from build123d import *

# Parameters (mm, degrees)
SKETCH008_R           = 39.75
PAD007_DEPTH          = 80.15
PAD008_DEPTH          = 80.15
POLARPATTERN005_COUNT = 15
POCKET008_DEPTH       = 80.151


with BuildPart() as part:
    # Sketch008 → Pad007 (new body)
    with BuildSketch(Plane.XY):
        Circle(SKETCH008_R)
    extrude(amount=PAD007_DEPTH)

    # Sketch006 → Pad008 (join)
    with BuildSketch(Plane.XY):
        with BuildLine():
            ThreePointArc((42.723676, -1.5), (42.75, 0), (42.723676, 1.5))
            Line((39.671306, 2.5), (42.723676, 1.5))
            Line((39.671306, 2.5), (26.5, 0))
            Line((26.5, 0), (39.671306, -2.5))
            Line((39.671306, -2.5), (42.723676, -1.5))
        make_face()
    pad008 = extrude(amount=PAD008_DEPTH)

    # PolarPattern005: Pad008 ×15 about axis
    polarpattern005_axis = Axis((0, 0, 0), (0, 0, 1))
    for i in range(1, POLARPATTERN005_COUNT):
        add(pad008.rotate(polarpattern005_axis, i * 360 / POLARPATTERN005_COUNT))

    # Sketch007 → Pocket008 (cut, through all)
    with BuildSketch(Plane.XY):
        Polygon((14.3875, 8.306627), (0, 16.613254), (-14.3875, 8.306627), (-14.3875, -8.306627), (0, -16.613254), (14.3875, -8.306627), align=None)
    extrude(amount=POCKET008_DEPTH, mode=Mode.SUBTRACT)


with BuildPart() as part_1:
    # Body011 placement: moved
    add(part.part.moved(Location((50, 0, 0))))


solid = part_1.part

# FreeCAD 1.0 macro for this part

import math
import FreeCAD as App
import Part
import Sketcher
Q = App.Units.Quantity

doc = App.newDocument("Part")
body = doc.addObject("PartDesign::Body", "Body")

sketch1 = body.newObject("Sketcher::SketchObject", "Sketch")
sketch1.AttachmentSupport = (doc.getObject("XY_Plane"), [""])
sketch1.MapMode = "FlatFace"
sketch1.addGeometry(Part.Circle(App.Vector(0, 0, 0), App.Vector(0, 0, 1), 39.75), False)
sketch1.addConstraint([
    Sketcher.Constraint("Coincident", 0, 3, -1, 1),
    Sketcher.Constraint("Diameter", 0, Q("79.5 mm")),
])
pad1 = body.newObject("PartDesign::Pad", "Pad")
pad1.Profile = sketch1
pad1.Length = 80.15

sketch2 = body.newObject("Sketcher::SketchObject", "Sketch001")
sketch2.AttachmentSupport = (doc.getObject("XY_Plane"), [""])
sketch2.MapMode = "FlatFace"
sketch2.addGeometry([
    Part.ArcOfCircle(Part.Circle(App.Vector(0.000172, 0, 0), App.Vector(0, 0, 1), 42.749828), math.radians(-2.010799), math.radians(2.010799)),
    Part.LineSegment(App.Vector(42.723676, 1.5, 0), App.Vector(39.671306, 2.5, 0)),
    Part.LineSegment(App.Vector(39.671306, 2.5, 0), App.Vector(26.5, 0, 0)),
    Part.LineSegment(App.Vector(26.5, 0, 0), App.Vector(39.671306, -2.5, 0)),
    Part.LineSegment(App.Vector(39.671306, -2.5, 0), App.Vector(42.723676, -1.5, 0)),
], False)
sketch2.addConstraint([
    Sketcher.Constraint("Coincident", 0, 2, 1, 1),
    Sketcher.Constraint("Coincident", 1, 2, 2, 1),
    Sketcher.Constraint("Coincident", 2, 2, 3, 1),
    Sketcher.Constraint("Coincident", 3, 2, 4, 1),
    Sketcher.Constraint("Coincident", 4, 2, 0, 1),
    Sketcher.Constraint("Symmetric", 1, 2, 3, 2, -1),
    Sketcher.Constraint("Symmetric", 0, 2, 4, 2, -1),
    Sketcher.Constraint("PointOnObject", 2, 2, -1),
    Sketcher.Constraint("DistanceY", 0, 2, 1, 2, Q("1 mm")),
    Sketcher.Constraint("DistanceY", 3, 2, 1, 2, Q("5 mm")),
    Sketcher.Constraint("DistanceX", -1, 1, 2, 2, Q("26.5 mm")),
    Sketcher.Constraint("Radius", 0, Q("42.749828 mm")),
    Sketcher.Constraint("DistanceX", -1, 1, 0, 3, Q("0.000172 mm")),
    Sketcher.Constraint("DistanceX", 1, 2, 0, 2, Q("3.05237 mm")),
])
pad2 = body.newObject("PartDesign::Pad", "Pad001")
pad2.Profile = sketch2
pad2.Length = 80.15
doc.recompute()

polarpattern = body.newObject("PartDesign::PolarPattern", "PolarPattern")
polarpattern.Originals = [pad2]
polarpattern.Axis = (doc.getObject("Z_Axis"), [""])
polarpattern.Angle = 360
polarpattern.Occurrences = 15
body.Tip = polarpattern

sketch3 = body.newObject("Sketcher::SketchObject", "Sketch002")
sketch3.AttachmentSupport = (doc.getObject("XY_Plane"), [""])
sketch3.MapMode = "FlatFace"
sketch3.addGeometry([
    Part.LineSegment(App.Vector(14.3875, 8.306627, 0), App.Vector(0, 16.613254, 0)),
    Part.LineSegment(App.Vector(0, 16.613254, 0), App.Vector(-14.3875, 8.306627, 0)),
    Part.LineSegment(App.Vector(-14.3875, 8.306627, 0), App.Vector(-14.3875, -8.306627, 0)),
    Part.LineSegment(App.Vector(-14.3875, -8.306627, 0), App.Vector(0, -16.613254, 0)),
    Part.LineSegment(App.Vector(0, -16.613254, 0), App.Vector(14.3875, -8.306627, 0)),
    Part.LineSegment(App.Vector(14.3875, -8.306627, 0), App.Vector(14.3875, 8.306627, 0)),
], False)
sketch3.addConstraint([
    Sketcher.Constraint("Coincident", 0, 2, 1, 1),
    Sketcher.Constraint("Coincident", 1, 2, 2, 1),
    Sketcher.Constraint("Coincident", 2, 2, 3, 1),
    Sketcher.Constraint("Coincident", 3, 2, 4, 1),
    Sketcher.Constraint("Coincident", 4, 2, 5, 1),
    Sketcher.Constraint("Coincident", 5, 2, 0, 1),
    Sketcher.Constraint("Vertical", 2),
    Sketcher.Constraint("Vertical", 5),
    Sketcher.Constraint("Symmetric", 0, 2, 3, 2, -1, 1),
    Sketcher.Constraint("Symmetric", 1, 2, 4, 2, -1, 1),
    Sketcher.Constraint("PointOnObject", 0, 2, -2),
    Sketcher.Constraint("Parallel", 0, 3),
    Sketcher.Constraint("Horizontal", 2, 2, 4, 2),
    Sketcher.Constraint("Angle", 0, Q("150 deg")),
    Sketcher.Constraint("DistanceX", 2, 2, 4, 2, Q("28.775 mm")),
    Sketcher.Constraint("DistanceY", 2, 2, 2, 1, Q("16.613254 mm")),
])
pocket1 = body.newObject("PartDesign::Pocket", "Pocket")
pocket1.Profile = sketch3
pocket1.Type = "ThroughAll"
pocket1.Reversed = True
body2 = doc.addObject("PartDesign::Body", "Body001")
doc.recompute()

body.Placement = App.Placement(App.Vector(50, 0, 0), App.Rotation(App.Vector(0, 0, 1), 0))
boolean = body2.newObject("PartDesign::Boolean", "Boolean")
boolean.Type = "Fuse"
boolean.addObjects([body])

doc.recompute()
